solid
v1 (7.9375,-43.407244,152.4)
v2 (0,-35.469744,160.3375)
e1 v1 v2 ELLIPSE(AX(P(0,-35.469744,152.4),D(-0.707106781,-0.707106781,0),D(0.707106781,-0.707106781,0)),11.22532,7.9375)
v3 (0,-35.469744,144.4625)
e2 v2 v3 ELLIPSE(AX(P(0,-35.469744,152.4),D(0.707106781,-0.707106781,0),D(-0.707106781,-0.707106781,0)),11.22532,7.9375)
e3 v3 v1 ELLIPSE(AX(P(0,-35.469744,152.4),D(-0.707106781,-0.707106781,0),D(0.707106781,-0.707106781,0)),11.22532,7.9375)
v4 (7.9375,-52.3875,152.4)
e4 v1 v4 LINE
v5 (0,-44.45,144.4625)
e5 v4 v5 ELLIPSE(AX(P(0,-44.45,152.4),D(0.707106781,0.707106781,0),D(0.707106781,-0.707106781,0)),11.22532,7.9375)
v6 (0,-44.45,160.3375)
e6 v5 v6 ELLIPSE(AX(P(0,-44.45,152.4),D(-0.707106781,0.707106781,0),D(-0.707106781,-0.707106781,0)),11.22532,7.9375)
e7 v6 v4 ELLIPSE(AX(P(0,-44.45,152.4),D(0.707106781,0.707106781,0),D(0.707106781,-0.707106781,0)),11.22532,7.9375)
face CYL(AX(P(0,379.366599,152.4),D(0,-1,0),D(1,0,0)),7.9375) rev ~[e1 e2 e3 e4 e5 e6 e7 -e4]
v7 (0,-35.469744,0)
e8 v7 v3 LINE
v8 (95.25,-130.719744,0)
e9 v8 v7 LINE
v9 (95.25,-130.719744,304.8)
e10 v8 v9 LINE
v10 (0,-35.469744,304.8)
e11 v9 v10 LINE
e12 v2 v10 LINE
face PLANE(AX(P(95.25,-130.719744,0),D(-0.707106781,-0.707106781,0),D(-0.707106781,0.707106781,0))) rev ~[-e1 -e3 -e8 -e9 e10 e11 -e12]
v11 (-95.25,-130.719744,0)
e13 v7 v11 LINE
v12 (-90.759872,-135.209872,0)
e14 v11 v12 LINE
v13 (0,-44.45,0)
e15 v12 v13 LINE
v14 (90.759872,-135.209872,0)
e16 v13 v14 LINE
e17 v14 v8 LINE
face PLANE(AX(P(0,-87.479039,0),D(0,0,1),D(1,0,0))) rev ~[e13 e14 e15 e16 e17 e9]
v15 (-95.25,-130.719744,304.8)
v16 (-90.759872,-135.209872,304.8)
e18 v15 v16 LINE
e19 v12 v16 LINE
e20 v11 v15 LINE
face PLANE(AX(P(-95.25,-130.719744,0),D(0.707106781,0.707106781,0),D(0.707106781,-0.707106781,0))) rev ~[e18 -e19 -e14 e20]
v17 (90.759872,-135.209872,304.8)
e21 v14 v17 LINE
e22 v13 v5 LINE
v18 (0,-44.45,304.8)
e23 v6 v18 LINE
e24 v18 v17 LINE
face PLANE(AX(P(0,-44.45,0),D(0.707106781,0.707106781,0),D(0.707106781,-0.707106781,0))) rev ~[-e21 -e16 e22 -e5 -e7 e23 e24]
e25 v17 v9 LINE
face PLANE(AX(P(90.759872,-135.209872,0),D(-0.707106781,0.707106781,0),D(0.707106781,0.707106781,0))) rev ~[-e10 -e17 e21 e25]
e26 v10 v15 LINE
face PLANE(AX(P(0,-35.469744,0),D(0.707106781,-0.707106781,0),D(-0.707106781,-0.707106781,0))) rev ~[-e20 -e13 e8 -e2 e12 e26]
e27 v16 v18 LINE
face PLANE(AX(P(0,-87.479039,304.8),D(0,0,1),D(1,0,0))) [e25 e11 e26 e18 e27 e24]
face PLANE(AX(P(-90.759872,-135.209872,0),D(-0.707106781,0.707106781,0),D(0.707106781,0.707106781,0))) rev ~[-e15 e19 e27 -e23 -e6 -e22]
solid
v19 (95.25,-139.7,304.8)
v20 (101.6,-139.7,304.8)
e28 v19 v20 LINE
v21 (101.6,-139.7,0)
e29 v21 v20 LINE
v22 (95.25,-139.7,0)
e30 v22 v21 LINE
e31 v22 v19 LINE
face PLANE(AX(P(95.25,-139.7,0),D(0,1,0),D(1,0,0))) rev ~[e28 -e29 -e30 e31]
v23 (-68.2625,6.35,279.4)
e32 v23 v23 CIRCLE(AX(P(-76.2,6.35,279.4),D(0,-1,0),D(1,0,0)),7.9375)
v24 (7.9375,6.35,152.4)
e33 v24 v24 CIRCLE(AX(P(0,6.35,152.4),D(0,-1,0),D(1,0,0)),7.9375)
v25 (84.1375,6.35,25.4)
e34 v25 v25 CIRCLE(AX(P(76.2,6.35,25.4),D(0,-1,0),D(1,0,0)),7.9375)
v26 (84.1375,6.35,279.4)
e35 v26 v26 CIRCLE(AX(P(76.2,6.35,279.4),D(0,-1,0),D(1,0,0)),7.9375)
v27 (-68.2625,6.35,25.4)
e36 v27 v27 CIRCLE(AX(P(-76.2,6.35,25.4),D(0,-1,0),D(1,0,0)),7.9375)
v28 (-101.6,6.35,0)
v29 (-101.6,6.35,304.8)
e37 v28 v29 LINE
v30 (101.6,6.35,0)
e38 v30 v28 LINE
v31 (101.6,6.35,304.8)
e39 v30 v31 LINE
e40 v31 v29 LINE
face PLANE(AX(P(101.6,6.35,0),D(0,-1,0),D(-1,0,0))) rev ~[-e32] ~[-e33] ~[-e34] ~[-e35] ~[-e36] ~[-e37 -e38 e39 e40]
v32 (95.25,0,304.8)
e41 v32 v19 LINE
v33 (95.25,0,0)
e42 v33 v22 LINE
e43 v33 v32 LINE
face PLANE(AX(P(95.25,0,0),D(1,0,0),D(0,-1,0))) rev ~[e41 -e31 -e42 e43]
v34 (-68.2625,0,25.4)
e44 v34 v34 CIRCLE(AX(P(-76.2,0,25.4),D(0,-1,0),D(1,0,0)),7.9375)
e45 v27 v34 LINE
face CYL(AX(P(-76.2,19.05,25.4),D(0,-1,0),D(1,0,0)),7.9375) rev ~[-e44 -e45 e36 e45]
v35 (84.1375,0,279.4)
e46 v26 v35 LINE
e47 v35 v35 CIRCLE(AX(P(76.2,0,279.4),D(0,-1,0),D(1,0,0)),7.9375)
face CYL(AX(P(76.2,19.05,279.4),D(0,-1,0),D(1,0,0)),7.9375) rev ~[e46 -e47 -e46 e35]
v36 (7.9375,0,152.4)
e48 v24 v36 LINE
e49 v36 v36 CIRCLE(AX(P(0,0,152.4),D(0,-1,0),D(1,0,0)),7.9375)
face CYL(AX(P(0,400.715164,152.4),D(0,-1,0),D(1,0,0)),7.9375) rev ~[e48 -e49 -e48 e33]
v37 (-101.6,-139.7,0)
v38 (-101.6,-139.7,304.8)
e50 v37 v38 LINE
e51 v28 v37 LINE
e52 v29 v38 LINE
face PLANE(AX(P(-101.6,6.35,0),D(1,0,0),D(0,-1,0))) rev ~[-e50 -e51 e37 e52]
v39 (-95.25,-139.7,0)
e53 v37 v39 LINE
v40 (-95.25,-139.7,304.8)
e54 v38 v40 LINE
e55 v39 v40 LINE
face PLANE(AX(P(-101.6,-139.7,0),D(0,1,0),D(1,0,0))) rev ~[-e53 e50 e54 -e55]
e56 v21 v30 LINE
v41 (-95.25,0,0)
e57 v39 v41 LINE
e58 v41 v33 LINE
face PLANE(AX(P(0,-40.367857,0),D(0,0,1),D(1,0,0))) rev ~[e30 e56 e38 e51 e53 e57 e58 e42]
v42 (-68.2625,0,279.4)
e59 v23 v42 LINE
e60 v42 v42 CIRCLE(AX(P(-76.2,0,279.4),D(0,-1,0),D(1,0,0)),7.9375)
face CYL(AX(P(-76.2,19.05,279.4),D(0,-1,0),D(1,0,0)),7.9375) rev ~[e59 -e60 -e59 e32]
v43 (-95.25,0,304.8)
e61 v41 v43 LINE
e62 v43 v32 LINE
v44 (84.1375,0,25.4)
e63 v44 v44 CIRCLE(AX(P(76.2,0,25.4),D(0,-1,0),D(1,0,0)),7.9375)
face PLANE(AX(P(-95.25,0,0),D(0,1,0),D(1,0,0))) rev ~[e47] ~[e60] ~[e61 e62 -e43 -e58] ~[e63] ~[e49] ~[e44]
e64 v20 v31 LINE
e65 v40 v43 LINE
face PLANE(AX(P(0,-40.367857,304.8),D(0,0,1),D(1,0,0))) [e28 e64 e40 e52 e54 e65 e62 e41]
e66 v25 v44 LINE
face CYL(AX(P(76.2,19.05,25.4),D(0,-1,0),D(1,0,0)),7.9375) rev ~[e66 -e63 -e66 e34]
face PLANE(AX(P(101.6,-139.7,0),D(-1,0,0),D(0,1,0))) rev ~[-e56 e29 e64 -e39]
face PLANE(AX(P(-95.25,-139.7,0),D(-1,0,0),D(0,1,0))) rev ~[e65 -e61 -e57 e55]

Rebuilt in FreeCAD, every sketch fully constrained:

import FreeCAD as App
import Part
import Sketcher
Q = App.Units.Quantity

doc = App.newDocument("Part")
body = doc.addObject("PartDesign::Body", "Body")

sketch1 = body.newObject("Sketcher::SketchObject", "Sketch")
sketch1.AttachmentSupport = (doc.getObject("XY_Plane"), [""])
sketch1.MapMode = "FlatFace"
sketch1.addGeometry([
    Part.LineSegment(App.Vector(-95, -140, 0), App.Vector(-95, 0, 0)),
    Part.LineSegment(App.Vector(-95, 0, 0), App.Vector(95, 0, 0)),
    Part.LineSegment(App.Vector(95, 0, 0), App.Vector(95, -140, 0)),
    Part.LineSegment(App.Vector(95, -140, 0), App.Vector(102, -140, 0)),
    Part.LineSegment(App.Vector(102, -140, 0), App.Vector(102, 6, 0)),
    Part.LineSegment(App.Vector(102, 6, 0), App.Vector(-102, 6, 0)),
    Part.LineSegment(App.Vector(-102, 6, 0), App.Vector(-102, -140, 0)),
    Part.LineSegment(App.Vector(-102, -140, 0), App.Vector(-95, -140, 0)),
], False)
sketch1.addConstraint([
    Sketcher.Constraint("Coincident", 0, 2, 1, 1),
    Sketcher.Constraint("Coincident", 1, 2, 2, 1),
    Sketcher.Constraint("Coincident", 2, 2, 3, 1),
    Sketcher.Constraint("Coincident", 3, 2, 4, 1),
    Sketcher.Constraint("Coincident", 4, 2, 5, 1),
    Sketcher.Constraint("Coincident", 5, 2, 6, 1),
    Sketcher.Constraint("Coincident", 6, 2, 7, 1),
    Sketcher.Constraint("Coincident", 7, 2, 0, 1),
    Sketcher.Constraint("Vertical", 0),
    Sketcher.Constraint("Horizontal", 1),
    Sketcher.Constraint("Vertical", 2),
    Sketcher.Constraint("Horizontal", 3),
    Sketcher.Constraint("Vertical", 4),
    Sketcher.Constraint("Horizontal", 5),
    Sketcher.Constraint("Vertical", 6),
    Sketcher.Constraint("Horizontal", 7),
    Sketcher.Constraint("Symmetric", 0, 2, 1, 2, -1, 1),
    Sketcher.Constraint("Symmetric", 3, 2, 6, 2, -2),
    Sketcher.Constraint("DistanceX", 5, 2, 5, 1, Q("8 in")),
    Sketcher.Constraint("DistanceX", 1, 1, 1, 2, Q("7.5 in")),
    Sketcher.Constraint("DistanceY", 0, 1, 0, 2, Q("5.5 in")),
    Sketcher.Constraint("DistanceY", 4, 1, 4, 2, Q("5.75 in")),
])
pad1 = body.newObject("PartDesign::Pad", "Pad")
pad1.Profile = sketch1
pad1.Length = Q("12 in")

sketch2 = body.newObject("Sketcher::SketchObject", "Sketch001")
sketch2.AttachmentSupport = (doc.getObject("XZ_Plane"), [""])
sketch2.MapMode = "FlatFace"
sketch2.AttachmentOffset = App.Placement(App.Vector(0, 0, -0.25 * 25.4), App.Rotation())
sketch2.addGeometry([
    Part.Circle(App.Vector(76, 279, 0), App.Vector(0, 0, 1), 8),
    Part.Circle(App.Vector(-76, 279, 0), App.Vector(0, 0, 1), 8),
    Part.Circle(App.Vector(76, 25, 0), App.Vector(0, 0, 1), 8),
    Part.Circle(App.Vector(-76, 25, 0), App.Vector(0, 0, 1), 8),
], False)
sketch2.addConstraint([
    Sketcher.Constraint("Equal", 0, 1),
    Sketcher.Constraint("Equal", 1, 2),
    Sketcher.Constraint("Equal", 2, 3),
    Sketcher.Constraint("Symmetric", 0, 3, 1, 3, -2),
    Sketcher.Constraint("Symmetric", 2, 3, 3, 3, -2),
    Sketcher.Constraint("Vertical", 0, 3, 2, 3),
    Sketcher.Constraint("Diameter", 0, Q("0.625 in")),
    Sketcher.Constraint("DistanceX", -1, 1, 0, 3, Q("3 in")),
    Sketcher.Constraint("DistanceY", -1, 1, 0, 3, Q("11 in")),
    Sketcher.Constraint("DistanceY", -1, 1, 2, 3, Q("1 in")),
])
doc.recompute()
hole = body.newObject("PartDesign::Hole", "Hole")
hole.Profile = sketch2
hole.ThreadType = "None"
hole.Diameter = Q("0.625 in")
hole.DepthType = "Dimension"
hole.Depth = Q("0.5 in")
hole.DrillPoint = "Flat"
hole.Reversed = True

sketch3 = body.newObject("Sketcher::SketchObject", "Sketch002")
sketch3.AttachmentSupport = (doc.getObject("XZ_Plane"), [""])
sketch3.MapMode = "FlatFace"
sketch3.AttachmentOffset = App.Placement(App.Vector(0, 0, -0.25 * 25.4), App.Rotation())
sketch3.addGeometry(Part.Circle(App.Vector(0, 152, 0), App.Vector(0, 0, 1), 8), False)
sketch3.addConstraint([
    Sketcher.Constraint("PointOnObject", 0, 3, -2),
    Sketcher.Constraint("Diameter", 0, Q("0.625 in")),
    Sketcher.Constraint("DistanceY", -1, 1, 0, 3, Q("6 in")),
])
doc.recompute()
hole2 = body.newObject("PartDesign::Hole", "Hole001")
hole2.Profile = sketch3
hole2.ThreadType = "None"
hole2.Diameter = Q("0.625 in")
hole2.DepthType = "ThroughAll"
hole2.Reversed = True
body2 = doc.addObject("PartDesign::Body", "Body001")

sketch4 = body2.newObject("Sketcher::SketchObject", "Sketch003")
sketch4.AttachmentSupport = (doc.getObject("XY_Plane001"), [""])
sketch4.MapMode = "FlatFace"
sketch4.addGeometry([
    Part.LineSegment(App.Vector(-95, -131, 0), App.Vector(-91, -135, 0)),
    Part.LineSegment(App.Vector(-91, -135, 0), App.Vector(0, -44, 0)),
    Part.LineSegment(App.Vector(0, -44, 0), App.Vector(91, -135, 0)),
    Part.LineSegment(App.Vector(91, -135, 0), App.Vector(95, -131, 0)),
    Part.LineSegment(App.Vector(95, -131, 0), App.Vector(0, -35, 0)),
    Part.LineSegment(App.Vector(0, -35, 0), App.Vector(-95, -131, 0)),
], False)
sketch4.addConstraint([
    Sketcher.Constraint("Coincident", 0, 2, 1, 1),
    Sketcher.Constraint("Coincident", 1, 2, 2, 1),
    Sketcher.Constraint("Coincident", 2, 2, 3, 1),
    Sketcher.Constraint("Coincident", 3, 2, 4, 1),
    Sketcher.Constraint("Coincident", 4, 2, 5, 1),
    Sketcher.Constraint("Coincident", 5, 2, 0, 1),
    Sketcher.Constraint("Symmetric", 0, 2, 2, 2, -2),
    Sketcher.Constraint("Symmetric", 3, 2, 5, 2, -2),
    Sketcher.Constraint("PointOnObject", 1, 2, -2),
    Sketcher.Constraint("PointOnObject", 4, 2, -2),
    Sketcher.Constraint("Perpendicular", 0, 1),
    Sketcher.Constraint("Perpendicular", 1, 2),
    Sketcher.Constraint("Perpendicular", 3, 4),
    Sketcher.Constraint("DistanceX", 5, 2, 3, 2, Q("7.5 in")),
    Sketcher.Constraint("Distance", 0, Q("0.25 in")),
    Sketcher.Constraint("DistanceY", 1, 2, -1, 1, Q("1.75 in")),
])
pad2 = body2.newObject("PartDesign::Pad", "Pad001")
pad2.Profile = sketch4
pad2.Length = Q("12 in")

sketch5 = body2.newObject("Sketcher::SketchObject", "Sketch004")
sketch5.AttachmentSupport = (doc.getObject("XZ_Plane001"), [""])
sketch5.MapMode = "FlatFace"
sketch5.AttachmentOffset = App.Placement(App.Vector(0, 0, -0.25 * 25.4), App.Rotation())
sketch5.addGeometry(Part.Circle(App.Vector(0, 152, 0), App.Vector(0, 0, 1), 8), False)
sketch5.addConstraint([
    Sketcher.Constraint("PointOnObject", 0, 3, -2),
    Sketcher.Constraint("Diameter", 0, Q("0.625 in")),
    Sketcher.Constraint("DistanceY", -1, 1, 0, 3, Q("6 in")),
])
doc.recompute()
hole3 = body2.newObject("PartDesign::Hole", "Hole002")
hole3.Profile = sketch5
hole3.ThreadType = "None"
hole3.Diameter = Q("0.625 in")
hole3.DepthType = "ThroughAll"
hole3.Reversed = True

doc.recompute()
